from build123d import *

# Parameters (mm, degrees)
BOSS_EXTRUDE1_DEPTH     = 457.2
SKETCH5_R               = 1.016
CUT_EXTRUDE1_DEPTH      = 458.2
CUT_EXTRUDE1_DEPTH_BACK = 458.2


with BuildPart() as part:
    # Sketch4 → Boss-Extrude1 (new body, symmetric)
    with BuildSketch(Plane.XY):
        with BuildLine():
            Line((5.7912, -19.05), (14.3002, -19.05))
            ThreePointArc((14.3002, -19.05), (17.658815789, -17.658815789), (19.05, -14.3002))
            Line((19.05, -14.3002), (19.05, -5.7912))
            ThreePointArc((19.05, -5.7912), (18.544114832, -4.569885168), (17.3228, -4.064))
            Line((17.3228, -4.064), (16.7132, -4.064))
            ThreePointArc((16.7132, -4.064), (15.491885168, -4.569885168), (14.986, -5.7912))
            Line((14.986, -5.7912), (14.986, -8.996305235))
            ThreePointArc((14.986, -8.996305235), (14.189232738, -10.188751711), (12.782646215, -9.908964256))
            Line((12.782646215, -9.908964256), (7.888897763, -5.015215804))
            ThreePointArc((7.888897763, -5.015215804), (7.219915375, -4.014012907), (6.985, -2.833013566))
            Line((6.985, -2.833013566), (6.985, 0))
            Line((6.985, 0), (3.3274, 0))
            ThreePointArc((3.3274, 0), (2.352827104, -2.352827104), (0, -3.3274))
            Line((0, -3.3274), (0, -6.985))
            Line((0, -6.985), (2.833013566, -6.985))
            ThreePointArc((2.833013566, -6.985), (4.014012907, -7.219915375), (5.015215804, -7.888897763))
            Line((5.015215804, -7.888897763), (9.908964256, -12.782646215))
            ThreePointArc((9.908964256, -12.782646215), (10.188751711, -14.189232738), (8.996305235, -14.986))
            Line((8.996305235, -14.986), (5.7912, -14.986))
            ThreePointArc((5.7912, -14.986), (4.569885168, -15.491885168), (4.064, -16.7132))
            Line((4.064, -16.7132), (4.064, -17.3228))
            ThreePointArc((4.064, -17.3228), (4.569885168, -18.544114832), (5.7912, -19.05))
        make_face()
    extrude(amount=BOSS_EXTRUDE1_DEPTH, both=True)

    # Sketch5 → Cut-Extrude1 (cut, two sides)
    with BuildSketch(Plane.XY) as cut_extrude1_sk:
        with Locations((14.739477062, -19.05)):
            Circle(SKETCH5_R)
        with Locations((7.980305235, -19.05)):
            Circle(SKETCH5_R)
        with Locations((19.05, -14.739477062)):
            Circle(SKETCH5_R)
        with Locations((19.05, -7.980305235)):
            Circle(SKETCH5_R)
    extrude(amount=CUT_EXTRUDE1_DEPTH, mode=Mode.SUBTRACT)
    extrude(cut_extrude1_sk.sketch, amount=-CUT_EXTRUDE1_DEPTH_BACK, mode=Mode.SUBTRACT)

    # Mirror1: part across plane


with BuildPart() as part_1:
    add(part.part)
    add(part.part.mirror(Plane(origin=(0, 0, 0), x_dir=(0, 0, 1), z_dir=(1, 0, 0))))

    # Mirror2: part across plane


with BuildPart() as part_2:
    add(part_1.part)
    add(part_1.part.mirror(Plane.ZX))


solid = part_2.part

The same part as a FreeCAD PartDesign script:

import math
import FreeCAD as App
import Part
import Sketcher
Q = App.Units.Quantity

doc = App.newDocument("Part")
body = doc.addObject("PartDesign::Body", "Body")

sketch1 = body.newObject("Sketcher::SketchObject", "Sketch")
sketch1.AttachmentSupport = (doc.getObject("XY_Plane"), [""])
sketch1.MapMode = "FlatFace"
sketch1.addGeometry([
    Part.LineSegment(App.Vector(5.7912, -19.05, 0), App.Vector(14.3002, -19.05, 0)),
    Part.ArcOfCircle(Part.Circle(App.Vector(14.3002, -14.3002, 0), App.Vector(0, 0, 1), 4.7498), math.radians(-90), math.radians(0)),
    Part.LineSegment(App.Vector(19.05, -14.3002, 0), App.Vector(19.05, -5.7912, 0)),
    Part.ArcOfCircle(Part.Circle(App.Vector(17.3228, -5.7912, 0), App.Vector(0, 0, 1), 1.7272), math.radians(0), math.radians(90)),
    Part.LineSegment(App.Vector(17.3228, -4.064, 0), App.Vector(16.7132, -4.064, 0)),
    Part.ArcOfCircle(Part.Circle(App.Vector(16.7132, -5.7912, 0), App.Vector(0, 0, 1), 1.7272), math.radians(90), math.radians(180)),
    Part.LineSegment(App.Vector(14.986, -5.7912, 0), App.Vector(14.986, -8.996305, 0)),
    Part.ArcOfCircle(Part.Circle(App.Vector(13.695305, -8.996305, 0), App.Vector(0, 0, 1), 1.290695), math.radians(-135), math.radians(0)),
    Part.LineSegment(App.Vector(12.782646, -9.908964, 0), App.Vector(7.888898, -5.015216, 0)),
    Part.ArcOfCircle(Part.Circle(App.Vector(10.0711, -2.833014, 0), App.Vector(0, 0, 1), 3.0861), math.radians(-180), math.radians(-135)),
    Part.LineSegment(App.Vector(6.985, -2.833014, 0), App.Vector(6.985, 0, 0)),
    Part.LineSegment(App.Vector(6.985, 0, 0), App.Vector(3.3274, 0, 0)),
    Part.ArcOfCircle(Part.Circle(App.Vector(0, 0, 0), App.Vector(0, 0, 1), 3.3274), math.radians(-90), math.radians(0)),
    Part.LineSegment(App.Vector(0, -3.3274, 0), App.Vector(0, -6.985, 0)),
    Part.LineSegment(App.Vector(0, -6.985, 0), App.Vector(2.833014, -6.985, 0)),
    Part.ArcOfCircle(Part.Circle(App.Vector(2.833014, -10.0711, 0), App.Vector(0, 0, 1), 3.0861), math.radians(45), math.radians(90)),
    Part.LineSegment(App.Vector(5.015216, -7.888898, 0), App.Vector(9.908964, -12.782646, 0)),
    Part.ArcOfCircle(Part.Circle(App.Vector(8.996305, -13.695305, 0), App.Vector(0, 0, 1), 1.290695), math.radians(-90), math.radians(45)),
    Part.LineSegment(App.Vector(8.996305, -14.986, 0), App.Vector(5.7912, -14.986, 0)),
    Part.ArcOfCircle(Part.Circle(App.Vector(5.7912, -16.7132, 0), App.Vector(0, 0, 1), 1.7272), math.radians(90), math.radians(180)),
    Part.LineSegment(App.Vector(4.064, -16.7132, 0), App.Vector(4.064, -17.3228, 0)),
    Part.ArcOfCircle(Part.Circle(App.Vector(5.7912, -17.3228, 0), App.Vector(0, 0, 1), 1.7272), math.radians(-180), math.radians(-90)),
], False)
sketch1.addConstraint([
    Sketcher.Constraint("Tangent", 0, 2, 1, 1),
    Sketcher.Constraint("Tangent", 1, 2, 2, 1),
    Sketcher.Constraint("Tangent", 2, 2, 3, 1),
    Sketcher.Constraint("Tangent", 3, 2, 4, 1),
    Sketcher.Constraint("Tangent", 4, 2, 5, 1),
    Sketcher.Constraint("Tangent", 5, 2, 6, 1),
    Sketcher.Constraint("Tangent", 6, 2, 7, 2),
    Sketcher.Constraint("Tangent", 7, 1, 8, 1),
    Sketcher.Constraint("Tangent", 8, 2, 9, 2),
    Sketcher.Constraint("Tangent", 9, 1, 10, 1),
    Sketcher.Constraint("Coincident", 10, 2, 11, 1),
    Sketcher.Constraint("Coincident", 11, 2, 12, 2),
    Sketcher.Constraint("Coincident", 12, 1, 13, 1),
    Sketcher.Constraint("Coincident", 13, 2, 14, 1),
    Sketcher.Constraint("Tangent", 14, 2, 15, 2),
    Sketcher.Constraint("Tangent", 15, 1, 16, 1),
    Sketcher.Constraint("Tangent", 16, 2, 17, 2),
    Sketcher.Constraint("Tangent", 17, 1, 18, 1),
    Sketcher.Constraint("Tangent", 18, 2, 19, 1),
    Sketcher.Constraint("Tangent", 19, 2, 20, 1),
    Sketcher.Constraint("Tangent", 20, 2, 21, 1),
    Sketcher.Constraint("Tangent", 21, 2, 0, 1),
    Sketcher.Constraint("Horizontal", 0),
    Sketcher.Constraint("Vertical", 2),
    Sketcher.Constraint("Horizontal", 4),
    Sketcher.Constraint("Vertical", 6),
    Sketcher.Constraint("Vertical", 10),
    Sketcher.Constraint("Horizontal", 11),
    Sketcher.Constraint("Vertical", 13),
    Sketcher.Constraint("Horizontal", 14),
    Sketcher.Constraint("Horizontal", 18),
    Sketcher.Constraint("Vertical", 20),
    Sketcher.Constraint("Coincident", 12, 3, -1, 1),
    Sketcher.Constraint("Equal", 3, 5),
    Sketcher.Constraint("Equal", 9, 15),
    Sketcher.Constraint("Equal", 7, 17),
    Sketcher.Constraint("Equal", 5, 19),
    Sketcher.Constraint("Equal", 19, 21),
    Sketcher.Constraint("PointOnObject", 10, 2, -1),
    Sketcher.Constraint("PointOnObject", 12, 1, -2),
    Sketcher.Constraint("Parallel", 8, 16),
    Sketcher.Constraint("Equal", 0, 2),
    Sketcher.Constraint("Equal", 18, 6),
    Sketcher.Constraint("Equal", 14, 10),
    Sketcher.Constraint("Equal", 11, 13),
    Sketcher.Constraint("Equal", 4, 20),
    Sketcher.Constraint("Equal", 8, 16),
    Sketcher.Constraint("Radius", 1, Q("0.187 in")),
    Sketcher.Constraint("Radius", 3, Q("0.068 in")),
    Sketcher.Constraint("Radius", 12, Q("0.131 in")),
    Sketcher.Constraint("Radius", 9, Q("0.1215 in")),
    Sketcher.Constraint("DistanceX", 0, 1, 0, 2, Q("0.335 in")),
    Sketcher.Constraint("DistanceX", 4, 2, 4, 1, Q("0.024 in")),
    Sketcher.Constraint("DistanceX", 11, 2, 11, 1, Q("0.144 in")),
    Sketcher.Constraint("DistanceY", 0, 2, -1, 1, Q("0.75 in")),
    Sketcher.Constraint("DistanceX", 17, 3, 7, 3, Q("0.185 in")),
    Sketcher.Constraint("Radius", 7, Q("1.290695 mm")),
])
pad1 = body.newObject("PartDesign::Pad", "Pad")
pad1.Profile = sketch1
pad1.Length = Q("36 in")
pad1.Midplane = True

sketch2 = body.newObject("Sketcher::SketchObject", "Sketch001")
sketch2.AttachmentSupport = (doc.getObject("XY_Plane"), [""])
sketch2.MapMode = "FlatFace"
sketch2.addGeometry([
    Part.Circle(App.Vector(14.739477, -19.05, 0), App.Vector(0, 0, 1), 1.016),
    Part.Circle(App.Vector(7.980305, -19.05, 0), App.Vector(0, 0, 1), 1.016),
    Part.Circle(App.Vector(19.05, -14.739477, 0), App.Vector(0, 0, 1), 1.016),
    Part.Circle(App.Vector(19.05, -7.980305, 0), App.Vector(0, 0, 1), 1.016),
], False)
sketch2.addConstraint([
    Sketcher.Constraint("Equal", 0, 1),
    Sketcher.Constraint("Equal", 1, 2),
    Sketcher.Constraint("Equal", 2, 3),
    Sketcher.Constraint("Horizontal", 0, 3, 1, 3),
    Sketcher.Constraint("Vertical", 2, 3, 3, 3),
    Sketcher.Constraint("Diameter", 0, Q("0.08 in")),
    Sketcher.Constraint("DistanceY", 0, 3, -1, 1, Q("0.75 in")),
    Sketcher.Constraint("DistanceX", -1, 1, 2, 3, Q("0.75 in")),
    Sketcher.Constraint("DistanceX", 1, 3, 0, 3, Q("6.759172 mm")),
    Sketcher.Constraint("DistanceY", 2, 3, 3, 3, Q("6.759172 mm")),
    Sketcher.Constraint("DistanceX", -1, 1, 0, 3, Q("14.739477 mm")),
    Sketcher.Constraint("DistanceY", 2, 3, -1, 1, Q("14.739477 mm")),
])
pocket1 = body.newObject("PartDesign::Pocket", "Pocket")
pocket1.Profile = sketch2
pocket1.Type = "ThroughAll"
pocket1.Midplane = True
body2 = doc.addObject("PartDesign::Body", "Body001")
doc.recompute()

body2.BaseFeature = body
doc.recompute()

mirroring = doc.addObject("Part::Mirroring", "Mirroring")
mirroring.Source = body
mirroring.Base = App.Vector(0, 0, 0)
mirroring.Normal = App.Vector(1, 0, 0)
body3 = doc.addObject("PartDesign::Body", "Body002")
body3.BaseFeature = mirroring
boolean = body2.newObject("PartDesign::Boolean", "Boolean")
boolean.Type = "Fuse"
boolean.addObjects([body3])
doc.recompute()
body4 = doc.addObject("PartDesign::Body", "Body003")
doc.recompute()

body4.BaseFeature = body2
doc.recompute()

mirroring2 = doc.addObject("Part::Mirroring", "Mirroring001")
mirroring2.Source = body2
mirroring2.Base = App.Vector(0, 0, 0)
mirroring2.Normal = App.Vector(0, 1, 0)
body5 = doc.addObject("PartDesign::Body", "Body004")
body5.BaseFeature = mirroring2
boolean2 = body4.newObject("PartDesign::Boolean", "Boolean001")
boolean2.Type = "Fuse"
boolean2.addObjects([body5])
doc.recompute()
mirroring.Visibility = False
mirroring2.Visibility = False

doc.recompute()
